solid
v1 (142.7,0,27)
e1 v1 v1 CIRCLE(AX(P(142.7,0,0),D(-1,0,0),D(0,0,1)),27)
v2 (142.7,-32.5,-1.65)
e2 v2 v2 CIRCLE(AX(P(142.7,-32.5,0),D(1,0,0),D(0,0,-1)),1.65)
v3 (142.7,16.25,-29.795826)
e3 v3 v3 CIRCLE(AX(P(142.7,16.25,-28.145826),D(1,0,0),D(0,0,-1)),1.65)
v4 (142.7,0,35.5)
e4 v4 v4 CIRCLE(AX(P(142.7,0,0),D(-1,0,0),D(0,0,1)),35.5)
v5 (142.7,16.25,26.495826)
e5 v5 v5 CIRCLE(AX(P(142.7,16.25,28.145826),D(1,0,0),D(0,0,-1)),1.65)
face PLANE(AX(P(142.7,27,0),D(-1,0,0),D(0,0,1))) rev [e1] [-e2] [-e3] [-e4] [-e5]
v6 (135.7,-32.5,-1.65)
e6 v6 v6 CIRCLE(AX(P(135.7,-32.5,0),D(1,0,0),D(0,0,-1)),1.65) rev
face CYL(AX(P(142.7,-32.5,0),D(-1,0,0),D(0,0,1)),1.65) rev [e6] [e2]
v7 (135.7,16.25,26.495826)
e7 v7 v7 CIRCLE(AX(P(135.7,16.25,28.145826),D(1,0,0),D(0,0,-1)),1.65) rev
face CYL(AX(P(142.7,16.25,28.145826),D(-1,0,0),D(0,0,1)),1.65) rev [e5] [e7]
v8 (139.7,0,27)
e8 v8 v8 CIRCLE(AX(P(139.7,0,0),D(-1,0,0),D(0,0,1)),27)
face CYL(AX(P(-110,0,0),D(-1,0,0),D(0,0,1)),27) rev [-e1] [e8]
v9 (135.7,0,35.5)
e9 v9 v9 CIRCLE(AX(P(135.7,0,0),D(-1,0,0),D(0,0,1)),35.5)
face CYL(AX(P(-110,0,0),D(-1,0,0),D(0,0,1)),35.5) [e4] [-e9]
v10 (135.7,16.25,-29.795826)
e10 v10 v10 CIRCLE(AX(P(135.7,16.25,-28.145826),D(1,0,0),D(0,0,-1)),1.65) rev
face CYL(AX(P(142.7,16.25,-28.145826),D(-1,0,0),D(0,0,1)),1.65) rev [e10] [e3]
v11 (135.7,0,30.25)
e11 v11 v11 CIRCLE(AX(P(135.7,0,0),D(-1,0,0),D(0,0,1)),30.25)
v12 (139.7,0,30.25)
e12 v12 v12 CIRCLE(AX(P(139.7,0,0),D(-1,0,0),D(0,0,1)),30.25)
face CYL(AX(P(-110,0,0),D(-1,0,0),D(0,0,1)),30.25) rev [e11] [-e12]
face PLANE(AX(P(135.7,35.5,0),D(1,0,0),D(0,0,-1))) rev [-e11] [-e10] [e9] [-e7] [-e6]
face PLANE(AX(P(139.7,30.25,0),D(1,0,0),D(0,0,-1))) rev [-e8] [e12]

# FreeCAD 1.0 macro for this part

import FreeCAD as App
import Part
import Sketcher

V = App.Vector
Q = App.Units.Quantity


def add_polygon(sketch, points):
    """Adds a closed chain of lines whose ends are joined by coincident constraints."""
    first, n = sketch.GeometryCount, len(points)
    for a, b in zip(points, points[1:] + points[:1]):
        sketch.addGeometry(Part.LineSegment(App.Vector(*a, 0), App.Vector(*b, 0)), False)
    for i in range(n):
        sketch.addConstraint(Sketcher.Constraint("Coincident", first + i, 2, first + (i + 1) % n, 1))

doc = App.newDocument("Part")
params = doc.addObject("Spreadsheet::Sheet", "Params")
for row, (alias, value) in enumerate([
    ("sketch1_width", "4 mm"),
    ("sketch1_width2", "3 mm"),
    ("sketch1_height", "8.5 mm"),
    ("sketch1_height2", "3.25 mm"),
    ("revolution_angle", "360 deg"),
    ("sketch2_diameter", "3.3 mm"),
], start=1):
    params.set(f"A{row}", alias)
    params.set(f"B{row}", "=" + value)
    params.setAlias(f"B{row}", alias)

body = doc.addObject("PartDesign::Body", "Body")

# Sketch on XY plane
sketch1 = doc.addObject("Sketcher::SketchObject", "Sketch")
body.addObject(sketch1)
sketch1.AttachmentSupport = (doc.XY_Plane, [""])
sketch1.MapMode = "FlatFace"
add_polygon(sketch1, [(135.7, 30.2), (139.7, 30.2), (139.7, 27), (142.7, 27), (142.7, 35.5), (135.7, 35.5)])  # lines 0-5
sketch1.addConstraint([
    Sketcher.Constraint("Horizontal", 0),
    Sketcher.Constraint("Vertical", 1),
    Sketcher.Constraint("Horizontal", 2),
    Sketcher.Constraint("Vertical", 3),
    Sketcher.Constraint("Horizontal", 4),
    Sketcher.Constraint("Vertical", 5),
    Sketcher.Constraint("DistanceX", 0, 1, 0, 2, Q("4 mm")),
    Sketcher.Constraint("DistanceX", 2, 1, 2, 2, Q("3 mm")),
    Sketcher.Constraint("DistanceY", 3, 1, 3, 2, Q("8.5 mm")),
    Sketcher.Constraint("DistanceY", -1, 1, 1, 2, Q("27 mm")),
    Sketcher.Constraint("DistanceY", 1, 2, 1, 1, Q("3.25 mm")),
    Sketcher.Constraint("DistanceX", -1, 1, 0, 2, Q("139.7 mm")),
])
sketch1.setExpression("Constraints[12]", "Params.sketch1_width")
sketch1.setExpression("Constraints[13]", "Params.sketch1_width2")
sketch1.setExpression("Constraints[14]", "Params.sketch1_height")
sketch1.setExpression("Constraints[16]", "Params.sketch1_height2")
revolution = doc.addObject("PartDesign::Revolution", "Revolution")
body.addObject(revolution)
revolution.Profile = sketch1
revolution.ReferenceAxis = (sketch1, ["H_Axis"])
revolution.setExpression("Angle", "Params.revolution_angle")

# Sketch on YZ plane
sketch2 = doc.addObject("Sketcher::SketchObject", "Sketch001")
body.addObject(sketch2)
sketch2.AttachmentSupport = (doc.YZ_Plane, [""])
sketch2.MapMode = "FlatFace"
sketch2.addGeometry([
    Part.Circle(V(16.2, 28.1, 0), V(0, 0, 1), 1.6),
    Part.Circle(V(-32.5, 0, 0), V(0, 0, 1), 1.6),
    Part.Circle(V(16.2, -28.1, 0), V(0, 0, 1), 1.6),
], False)
sketch2.addConstraint([
    Sketcher.Constraint("Equal", 0, 1),
    Sketcher.Constraint("Equal", 1, 2),
    Sketcher.Constraint("Symmetric", 0, 3, 2, 3, -1),
    Sketcher.Constraint("PointOnObject", 1, 3, -1),
    Sketcher.Constraint("Diameter", 0, Q("3.3 mm")),
    Sketcher.Constraint("DistanceX", 1, 3, -1, 1, Q("32.5 mm")),
    Sketcher.Constraint("DistanceX", -1, 1, 0, 3, Q("16.25 mm")),
    Sketcher.Constraint("DistanceY", 2, 3, 0, 3, Q("56.291651 mm")),
])
sketch2.setExpression("Constraints[4]", "Params.sketch2_diameter")
pocket1 = doc.addObject("PartDesign::Pocket", "Pocket")
body.addObject(pocket1)
pocket1.Profile = sketch2
pocket1.Type = "ThroughAll"
pocket1.Midplane = True

doc.recompute()
